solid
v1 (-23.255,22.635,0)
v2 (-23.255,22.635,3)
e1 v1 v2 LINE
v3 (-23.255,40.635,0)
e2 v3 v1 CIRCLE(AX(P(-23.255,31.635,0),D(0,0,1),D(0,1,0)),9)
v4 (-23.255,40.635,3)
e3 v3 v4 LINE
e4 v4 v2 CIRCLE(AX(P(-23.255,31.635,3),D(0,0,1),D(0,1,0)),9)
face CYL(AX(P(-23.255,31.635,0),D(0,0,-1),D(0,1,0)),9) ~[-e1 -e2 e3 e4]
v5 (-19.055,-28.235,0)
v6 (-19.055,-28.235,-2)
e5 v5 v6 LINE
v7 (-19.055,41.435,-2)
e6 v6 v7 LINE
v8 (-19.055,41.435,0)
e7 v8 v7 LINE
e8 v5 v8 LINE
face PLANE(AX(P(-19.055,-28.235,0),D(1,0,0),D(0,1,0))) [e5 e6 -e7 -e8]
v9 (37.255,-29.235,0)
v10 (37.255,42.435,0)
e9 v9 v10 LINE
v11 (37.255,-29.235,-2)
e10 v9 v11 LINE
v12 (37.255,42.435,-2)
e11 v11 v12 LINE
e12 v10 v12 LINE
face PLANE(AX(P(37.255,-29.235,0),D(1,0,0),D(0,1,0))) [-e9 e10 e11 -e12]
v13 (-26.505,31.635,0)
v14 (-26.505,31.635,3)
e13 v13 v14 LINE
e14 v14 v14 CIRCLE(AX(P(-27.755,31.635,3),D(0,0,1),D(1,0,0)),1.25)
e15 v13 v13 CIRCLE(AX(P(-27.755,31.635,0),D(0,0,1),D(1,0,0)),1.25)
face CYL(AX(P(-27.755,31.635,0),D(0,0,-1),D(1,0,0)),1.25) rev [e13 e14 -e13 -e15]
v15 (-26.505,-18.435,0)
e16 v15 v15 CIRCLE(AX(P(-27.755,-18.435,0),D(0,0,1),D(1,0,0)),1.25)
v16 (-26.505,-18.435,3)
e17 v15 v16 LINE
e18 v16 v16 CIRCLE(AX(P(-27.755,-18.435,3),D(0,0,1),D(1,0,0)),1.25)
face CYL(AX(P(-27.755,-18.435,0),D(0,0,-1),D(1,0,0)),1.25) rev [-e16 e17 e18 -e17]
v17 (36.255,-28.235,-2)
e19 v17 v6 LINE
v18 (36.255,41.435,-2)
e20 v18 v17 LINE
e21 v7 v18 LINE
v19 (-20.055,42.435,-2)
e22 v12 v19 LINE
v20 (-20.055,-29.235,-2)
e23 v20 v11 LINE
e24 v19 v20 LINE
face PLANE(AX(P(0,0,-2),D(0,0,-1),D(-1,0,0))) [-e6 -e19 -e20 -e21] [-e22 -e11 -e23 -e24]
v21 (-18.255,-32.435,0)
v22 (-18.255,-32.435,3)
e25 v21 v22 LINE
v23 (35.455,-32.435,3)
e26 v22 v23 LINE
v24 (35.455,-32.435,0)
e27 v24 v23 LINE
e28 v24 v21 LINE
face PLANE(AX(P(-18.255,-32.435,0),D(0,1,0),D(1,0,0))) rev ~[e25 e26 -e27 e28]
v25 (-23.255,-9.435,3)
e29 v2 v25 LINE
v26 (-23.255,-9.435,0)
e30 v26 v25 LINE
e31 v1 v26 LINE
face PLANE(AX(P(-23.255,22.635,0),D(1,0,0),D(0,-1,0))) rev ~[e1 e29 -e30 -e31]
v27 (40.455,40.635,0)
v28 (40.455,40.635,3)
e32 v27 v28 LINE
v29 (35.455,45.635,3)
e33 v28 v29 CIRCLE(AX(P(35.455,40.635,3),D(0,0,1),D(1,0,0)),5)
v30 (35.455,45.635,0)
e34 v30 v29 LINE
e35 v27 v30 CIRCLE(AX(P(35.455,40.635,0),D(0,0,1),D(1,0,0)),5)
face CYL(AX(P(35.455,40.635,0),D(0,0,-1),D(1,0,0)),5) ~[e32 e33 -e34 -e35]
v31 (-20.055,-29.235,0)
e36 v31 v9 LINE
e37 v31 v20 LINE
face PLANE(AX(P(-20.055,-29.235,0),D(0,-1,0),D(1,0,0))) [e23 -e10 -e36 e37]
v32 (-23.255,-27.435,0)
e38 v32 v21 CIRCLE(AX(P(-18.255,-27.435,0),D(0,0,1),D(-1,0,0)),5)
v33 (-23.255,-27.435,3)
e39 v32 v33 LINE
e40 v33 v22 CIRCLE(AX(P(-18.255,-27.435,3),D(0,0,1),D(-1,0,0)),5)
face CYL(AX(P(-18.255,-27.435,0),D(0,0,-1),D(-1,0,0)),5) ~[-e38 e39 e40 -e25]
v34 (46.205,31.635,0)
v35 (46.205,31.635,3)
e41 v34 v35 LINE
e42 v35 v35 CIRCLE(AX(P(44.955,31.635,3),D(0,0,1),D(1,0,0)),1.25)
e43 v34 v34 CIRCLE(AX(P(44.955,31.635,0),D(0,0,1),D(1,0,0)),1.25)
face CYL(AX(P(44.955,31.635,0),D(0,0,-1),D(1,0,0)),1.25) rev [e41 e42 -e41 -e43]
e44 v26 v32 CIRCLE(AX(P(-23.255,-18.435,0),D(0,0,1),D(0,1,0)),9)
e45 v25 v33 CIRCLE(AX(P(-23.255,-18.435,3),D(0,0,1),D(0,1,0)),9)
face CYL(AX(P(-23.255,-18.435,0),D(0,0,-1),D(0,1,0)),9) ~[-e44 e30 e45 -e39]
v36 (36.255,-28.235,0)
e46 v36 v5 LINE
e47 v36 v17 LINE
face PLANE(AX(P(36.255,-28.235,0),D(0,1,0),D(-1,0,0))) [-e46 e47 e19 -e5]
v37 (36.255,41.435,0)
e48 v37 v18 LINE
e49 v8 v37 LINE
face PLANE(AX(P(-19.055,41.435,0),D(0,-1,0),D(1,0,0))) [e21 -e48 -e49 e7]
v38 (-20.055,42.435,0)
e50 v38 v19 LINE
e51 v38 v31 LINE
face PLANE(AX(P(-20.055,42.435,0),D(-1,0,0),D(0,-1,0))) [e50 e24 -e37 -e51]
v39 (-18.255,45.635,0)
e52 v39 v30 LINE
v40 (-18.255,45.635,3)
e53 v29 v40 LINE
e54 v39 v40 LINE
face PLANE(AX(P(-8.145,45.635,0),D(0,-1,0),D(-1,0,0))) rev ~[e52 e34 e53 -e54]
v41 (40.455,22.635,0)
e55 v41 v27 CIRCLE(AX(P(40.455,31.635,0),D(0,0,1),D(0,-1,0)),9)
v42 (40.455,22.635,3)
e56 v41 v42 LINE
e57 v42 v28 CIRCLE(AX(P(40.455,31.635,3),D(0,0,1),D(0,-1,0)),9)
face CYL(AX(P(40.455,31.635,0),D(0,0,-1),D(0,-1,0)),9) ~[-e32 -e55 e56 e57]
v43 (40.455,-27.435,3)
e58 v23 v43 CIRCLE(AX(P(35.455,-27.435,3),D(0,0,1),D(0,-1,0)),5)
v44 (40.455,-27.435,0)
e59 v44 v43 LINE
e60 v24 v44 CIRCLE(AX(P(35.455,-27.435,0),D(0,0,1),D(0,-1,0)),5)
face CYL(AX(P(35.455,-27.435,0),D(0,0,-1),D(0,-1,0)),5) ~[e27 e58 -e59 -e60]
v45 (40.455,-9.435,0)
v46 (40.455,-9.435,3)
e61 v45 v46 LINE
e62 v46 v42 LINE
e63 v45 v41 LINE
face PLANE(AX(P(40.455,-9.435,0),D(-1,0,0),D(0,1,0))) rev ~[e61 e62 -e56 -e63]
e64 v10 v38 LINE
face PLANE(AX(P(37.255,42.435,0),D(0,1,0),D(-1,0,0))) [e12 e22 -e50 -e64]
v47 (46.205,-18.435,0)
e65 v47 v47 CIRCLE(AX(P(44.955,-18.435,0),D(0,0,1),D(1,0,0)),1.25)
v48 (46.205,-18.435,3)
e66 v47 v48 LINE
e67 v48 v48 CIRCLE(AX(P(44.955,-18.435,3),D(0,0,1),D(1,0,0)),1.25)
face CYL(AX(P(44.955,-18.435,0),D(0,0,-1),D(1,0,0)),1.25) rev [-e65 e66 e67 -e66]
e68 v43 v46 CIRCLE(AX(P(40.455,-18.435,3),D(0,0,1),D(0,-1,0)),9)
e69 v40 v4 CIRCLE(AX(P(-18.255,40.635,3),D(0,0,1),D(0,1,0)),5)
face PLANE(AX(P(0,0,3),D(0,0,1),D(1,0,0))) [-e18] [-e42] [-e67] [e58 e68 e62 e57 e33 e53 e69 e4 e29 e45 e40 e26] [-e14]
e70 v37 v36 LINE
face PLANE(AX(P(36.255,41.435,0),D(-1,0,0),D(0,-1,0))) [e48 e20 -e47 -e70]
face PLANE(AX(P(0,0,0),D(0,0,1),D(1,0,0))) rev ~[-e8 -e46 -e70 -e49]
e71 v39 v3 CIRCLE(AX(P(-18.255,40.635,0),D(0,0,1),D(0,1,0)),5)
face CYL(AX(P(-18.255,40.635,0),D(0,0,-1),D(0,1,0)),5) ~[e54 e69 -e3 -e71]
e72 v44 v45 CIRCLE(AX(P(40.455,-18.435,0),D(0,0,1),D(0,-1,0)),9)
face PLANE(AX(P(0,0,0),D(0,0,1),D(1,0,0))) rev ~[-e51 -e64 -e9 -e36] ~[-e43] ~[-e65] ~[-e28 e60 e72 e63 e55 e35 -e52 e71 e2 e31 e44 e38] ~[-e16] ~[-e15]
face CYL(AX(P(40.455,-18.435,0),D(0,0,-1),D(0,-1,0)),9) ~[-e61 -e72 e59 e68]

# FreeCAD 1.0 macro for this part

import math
import FreeCAD as App
import Part
import Sketcher

V = App.Vector


def add_polygon(sketch, points):
    """Adds a closed chain of lines whose ends are joined by coincident constraints."""
    first, n = sketch.GeometryCount, len(points)
    for a, b in zip(points, points[1:] + points[:1]):
        sketch.addGeometry(Part.LineSegment(App.Vector(*a, 0), App.Vector(*b, 0)), False)
    for i in range(n):
        sketch.addConstraint(Sketcher.Constraint("Coincident", first + i, 2, first + (i + 1) % n, 1))

doc = App.newDocument("Part")
body = doc.addObject("PartDesign::Body", "Body")

# Sketch on XY plane
sketch1 = body.newObject("Sketcher::SketchObject", "Sketch")
sketch1.AttachmentSupport = (doc.getObject("XY_Plane"), [""])
sketch1.MapMode = "FlatFace"
sketch1.addGeometry([
    Part.ArcOfCircle(Part.Circle(V(-23.255, 31.635, 0), V(0, 0, 1), 9), math.radians(90), math.radians(270)),  # 0
    Part.LineSegment(V(-23.255, 22.635, 0), V(-23.255, -9.435, 0)),  # 1
    Part.ArcOfCircle(Part.Circle(V(-23.255, -18.435, 0), V(0, 0, 1), 9), math.radians(90), math.radians(270)),  # 2
    Part.ArcOfCircle(Part.Circle(V(-18.255, -27.435, 0), V(0, 0, 1), 5), math.radians(180), math.radians(270)),  # 3
    Part.LineSegment(V(-18.255, -32.435, 0), V(35.455, -32.435, 0)),  # 4
    Part.ArcOfCircle(Part.Circle(V(35.455, -27.435, 0), V(0, 0, 1), 5), math.radians(-90), math.radians(0)),  # 5
    Part.ArcOfCircle(Part.Circle(V(40.455, -18.435, 0), V(0, 0, 1), 9), math.radians(-90), math.radians(90)),  # 6
    Part.LineSegment(V(40.455, -9.435, 0), V(40.455, 22.635, 0)),  # 7
    Part.ArcOfCircle(Part.Circle(V(40.455, 31.635, 0), V(0, 0, 1), 9), math.radians(-90), math.radians(90)),  # 8
    Part.ArcOfCircle(Part.Circle(V(35.455, 40.635, 0), V(0, 0, 1), 5), math.radians(0), math.radians(90)),  # 9
    Part.LineSegment(V(35.455, 45.635, 0), V(-18.255, 45.635, 0)),  # 10
    Part.ArcOfCircle(Part.Circle(V(-18.255, 40.635, 0), V(0, 0, 1), 5), math.radians(90), math.radians(180)),  # 11
    Part.Circle(V(-27.755, -18.435, 0), V(0, 0, 1), 1.25),  # 12
    Part.Circle(V(-27.755, 31.635, 0), V(0, 0, 1), 1.25),  # 13
    Part.Circle(V(44.955, 31.635, 0), V(0, 0, 1), 1.25),  # 14
    Part.Circle(V(44.955, -18.435, 0), V(0, 0, 1), 1.25),  # 15
], False)
sketch1.addConstraint([
    Sketcher.Constraint("Coincident", 0, 2, 1, 1),
    Sketcher.Constraint("Coincident", 1, 2, 2, 1),
    Sketcher.Constraint("Coincident", 2, 2, 3, 1),
    Sketcher.Constraint("Tangent", 3, 2, 4, 1),
    Sketcher.Constraint("Tangent", 4, 2, 5, 1),
    Sketcher.Constraint("Coincident", 5, 2, 6, 1),
    Sketcher.Constraint("Coincident", 6, 2, 7, 1),
    Sketcher.Constraint("Coincident", 7, 2, 8, 1),
    Sketcher.Constraint("Coincident", 8, 2, 9, 1),
    Sketcher.Constraint("Tangent", 9, 2, 10, 1),
    Sketcher.Constraint("Tangent", 10, 2, 11, 1),
    Sketcher.Constraint("Coincident", 11, 2, 0, 1),
    Sketcher.Constraint("Vertical", 1),
    Sketcher.Constraint("Horizontal", 4),
    Sketcher.Constraint("Vertical", 7),
    Sketcher.Constraint("Horizontal", 10),
    Sketcher.Constraint("Equal", 0, 2),
    Sketcher.Constraint("Equal", 3, 5),
    Sketcher.Constraint("Equal", 2, 6),
    Sketcher.Constraint("Equal", 6, 8),
    Sketcher.Constraint("Equal", 5, 9),
    Sketcher.Constraint("Equal", 9, 11),
    Sketcher.Constraint("Equal", 12, 13),
    Sketcher.Constraint("Equal", 13, 14),
    Sketcher.Constraint("Equal", 14, 15),
    Sketcher.Constraint("Horizontal", 2, 3, 6, 3),
    Sketcher.Constraint("Horizontal", 0, 3, 8, 3),
    Sketcher.Constraint("Horizontal", 6, 3, 12, 3),
    Sketcher.Constraint("Horizontal", 8, 3, 13, 3),
    Sketcher.Constraint("Horizontal", 13, 3, 14, 3),
    Sketcher.Constraint("Horizontal", 12, 3, 15, 3),
    Sketcher.Constraint("Horizontal", 5, 3, 2, 2),
    Sketcher.Constraint("Horizontal", 11, 3, 8, 2),
    Sketcher.Constraint("Vertical", 0, 3, 2, 3),
    Sketcher.Constraint("Vertical", 6, 3, 8, 3),
    Sketcher.Constraint("Vertical", 5, 3, 9, 3),
    Sketcher.Constraint("Vertical", 3, 3, 11, 3),
    Sketcher.Constraint("Vertical", 12, 3, 13, 3),
    Sketcher.Constraint("Vertical", 14, 3, 15, 3),
    Sketcher.Constraint("Vertical", 2, 3, 0, 2),
    Sketcher.Constraint("Vertical", 1, 2, 2, 2),
    Sketcher.Constraint("Vertical", 8, 3, 5, 2),
    Sketcher.Constraint("Vertical", 5, 2, 6, 2),
    Sketcher.Constraint("Radius", 0, 9.0),
    Sketcher.Constraint("Radius", 3, 5.0),
    Sketcher.Constraint("Diameter", 12, 2.5),
    Sketcher.Constraint("DistanceX", 4, 1, 4, 2, 53.71),
    Sketcher.Constraint("DistanceY", 1, 2, 1, 1, 32.07),
    Sketcher.Constraint("DistanceX", 12, 3, 2, 3, 4.5),
    Sketcher.Constraint("DistanceX", 8, 3, 14, 3, 4.5),
    Sketcher.Constraint("DistanceX", 0, 3, -1, 1, 23.255),
    Sketcher.Constraint("DistanceY", -1, 1, 0, 3, 31.635),
])
pad1 = body.newObject("PartDesign::Pad", "Pad")
pad1.Profile = sketch1
pad1.Length = 3

# Sketch on XY plane
sketch2 = body.newObject("Sketcher::SketchObject", "Sketch001")
sketch2.AttachmentSupport = (doc.getObject("XY_Plane"), [""])
sketch2.MapMode = "FlatFace"
add_polygon(sketch2, [(37.255, -29.235), (-20.055, -29.235), (-20.055, 42.435), (37.255, 42.435)])  # lines 0-3
add_polygon(sketch2, [(-19.055, -28.235), (36.255, -28.235), (36.255, 41.435), (-19.055, 41.435)])  # lines 4-7
sketch2.addConstraint([
    Sketcher.Constraint("Horizontal", 0),
    Sketcher.Constraint("Vertical", 1),
    Sketcher.Constraint("Horizontal", 2),
    Sketcher.Constraint("Vertical", 3),
    Sketcher.Constraint("Horizontal", 4),
    Sketcher.Constraint("Vertical", 5),
    Sketcher.Constraint("Horizontal", 6),
    Sketcher.Constraint("Vertical", 7),
    Sketcher.Constraint("DistanceX", 4, 2, 3, 2, 1.0),
    Sketcher.Constraint("DistanceY", 3, 2, 4, 2, 1.0),
    Sketcher.Constraint("DistanceY", 5, 2, 2, 2, 1.0),
    Sketcher.Constraint("DistanceX", 1, 2, 6, 2, 1.0),
    Sketcher.Constraint("DistanceX", 0, 2, 0, 1, 57.31),
    Sketcher.Constraint("DistanceY", 1, 1, 1, 2, 71.67),
    Sketcher.Constraint("DistanceX", 0, 2, -1, 1, 20.055),
    Sketcher.Constraint("DistanceY", 0, 2, -1, 1, 29.235),
])
pad2 = body.newObject("PartDesign::Pad", "Pad001")
pad2.Profile = sketch2
pad2.Length = 2
pad2.Reversed = True

doc.recompute()
